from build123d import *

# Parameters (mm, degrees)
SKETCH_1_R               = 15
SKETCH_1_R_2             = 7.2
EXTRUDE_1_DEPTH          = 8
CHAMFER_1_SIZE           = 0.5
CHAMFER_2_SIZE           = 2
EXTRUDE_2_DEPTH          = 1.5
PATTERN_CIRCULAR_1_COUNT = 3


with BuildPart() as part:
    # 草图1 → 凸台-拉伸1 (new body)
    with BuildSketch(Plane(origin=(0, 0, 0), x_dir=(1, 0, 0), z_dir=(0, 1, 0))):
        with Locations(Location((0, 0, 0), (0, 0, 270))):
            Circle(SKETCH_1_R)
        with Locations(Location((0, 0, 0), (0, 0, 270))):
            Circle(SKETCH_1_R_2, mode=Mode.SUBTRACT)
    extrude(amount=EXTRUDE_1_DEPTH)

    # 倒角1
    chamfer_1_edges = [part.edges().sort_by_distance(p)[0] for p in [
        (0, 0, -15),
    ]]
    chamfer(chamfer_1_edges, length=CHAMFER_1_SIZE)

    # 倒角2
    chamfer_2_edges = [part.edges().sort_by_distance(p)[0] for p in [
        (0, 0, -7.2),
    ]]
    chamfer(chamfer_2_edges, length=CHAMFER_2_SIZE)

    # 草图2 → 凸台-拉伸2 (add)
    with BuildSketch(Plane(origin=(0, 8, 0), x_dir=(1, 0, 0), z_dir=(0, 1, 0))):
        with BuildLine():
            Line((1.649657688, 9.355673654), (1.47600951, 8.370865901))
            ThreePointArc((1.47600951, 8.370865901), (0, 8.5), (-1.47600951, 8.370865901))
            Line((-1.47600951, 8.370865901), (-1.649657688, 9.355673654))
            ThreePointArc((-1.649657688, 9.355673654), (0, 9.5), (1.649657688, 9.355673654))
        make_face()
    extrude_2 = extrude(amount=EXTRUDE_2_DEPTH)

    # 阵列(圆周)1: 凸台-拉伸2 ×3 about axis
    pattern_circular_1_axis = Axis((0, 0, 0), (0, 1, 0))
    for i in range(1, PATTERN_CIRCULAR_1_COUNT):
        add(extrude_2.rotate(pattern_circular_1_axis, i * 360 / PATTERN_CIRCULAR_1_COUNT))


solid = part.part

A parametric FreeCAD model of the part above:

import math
import FreeCAD as App
import Part
import Sketcher
from FreeCAD import Vector
Q = App.Units.Quantity


def edges_at(feature, points):
    """Names of the edges that pass closest to the given points."""
    edges = feature.Shape.Edges
    near = lambda p: min(range(len(edges)), key=lambda i: edges[i].distToShape(Part.Vertex(*p))[0])
    return sorted({f"Edge{near(p) + 1}" for p in points})

doc = App.newDocument("Part")
body = doc.addObject("PartDesign::Body", "Body")

# Sketch on XZ plane
sketch1 = doc.addObject("Sketcher::SketchObject", "Sketch")
body.addObject(sketch1)
sketch1.AttachmentSupport = (doc.XZ_Plane, [""])
sketch1.MapMode = "FlatFace"
sketch1.addGeometry(Part.Circle(Vector(0, 0, 0), Vector(0, 0, 1), 15), False)
sketch1.addGeometry(Part.Circle(Vector(0, 0, 0), Vector(0, 0, 1), 7), False)
sketch1.addConstraint(Sketcher.Constraint("Coincident", 0, 3, -1, 1))
sketch1.addConstraint(Sketcher.Constraint("Coincident", 1, 3, -1, 1))
sketch1.addConstraint(Sketcher.Constraint("Diameter", 0, 30.0))
sketch1.addConstraint(Sketcher.Constraint("Diameter", 1, 14.4))
pad1 = doc.addObject("PartDesign::Pad", "Pad")
body.addObject(pad1)
pad1.Profile = sketch1
pad1.Length = 8
pad1.Reversed = True
doc.recompute()

chamfer = doc.addObject("PartDesign::Chamfer", "Chamfer")
body.addObject(chamfer)
chamfer.Base = (pad1, edges_at(pad1, [(0, 0, -15)]))
chamfer.Size = 0.5
doc.recompute()

chamfer2 = doc.addObject("PartDesign::Chamfer", "Chamfer001")
body.addObject(chamfer2)
chamfer2.Base = (chamfer, edges_at(chamfer, [(0, 0, -7.2)]))
chamfer2.Size = 2

# Sketch on XZ plane
sketch2 = doc.addObject("Sketcher::SketchObject", "Sketch001")
body.addObject(sketch2)
sketch2.AttachmentSupport = (doc.XZ_Plane, [""])
sketch2.MapMode = "FlatFace"
sketch2.AttachmentOffset = App.Placement(Vector(0, 0, -8), App.Rotation())
sketch2.addGeometry(Part.LineSegment(Vector(1.5, -8.4, 0), Vector(1.6, -9.4, 0)), False)
sketch2.addGeometry(Part.ArcOfCircle(Part.Circle(Vector(0, 0, 0), Vector(0, 0, 1), 9.5), math.radians(-100), math.radians(-80)), False)
sketch2.addGeometry(Part.LineSegment(Vector(-1.6, -9.4, 0), Vector(-1.5, -8.4, 0)), False)
sketch2.addGeometry(Part.ArcOfCircle(Part.Circle(Vector(0, 0, 0), Vector(0, 0, 1), 8.5), math.radians(-100), math.radians(-80)), False)
sketch2.addConstraint(Sketcher.Constraint("Coincident", 0, 2, 1, 2))
sketch2.addConstraint(Sketcher.Constraint("Coincident", 1, 1, 2, 1))
sketch2.addConstraint(Sketcher.Constraint("Coincident", 2, 2, 3, 1))
sketch2.addConstraint(Sketcher.Constraint("Coincident", 3, 2, 0, 1))
sketch2.addConstraint(Sketcher.Constraint("Coincident", 1, 3, -1, 1))
sketch2.addConstraint(Sketcher.Constraint("Coincident", 3, 3, -1, 1))
sketch2.addConstraint(Sketcher.Constraint("Horizontal", 0, 2, 1, 1))
sketch2.addConstraint(Sketcher.Constraint("Horizontal", 2, 2, 3, 2))
sketch2.addConstraint(Sketcher.Constraint("Radius", 1, 9.5))
sketch2.addConstraint(Sketcher.Constraint("Radius", 3, 8.5))
sketch2.addConstraint(Sketcher.Constraint("Angle", 0, Q("-80 deg")))
sketch2.addConstraint(Sketcher.Constraint("DistanceX", 2, 2, -1, 1, 1.47601))
pad2 = doc.addObject("PartDesign::Pad", "Pad001")
body.addObject(pad2)
pad2.Profile = sketch2
pad2.Length = 1.5
pad2.Reversed = True
doc.recompute()

polarpattern = doc.addObject("PartDesign::PolarPattern", "PolarPattern")
body.addObject(polarpattern)
polarpattern.Originals = [pad2]
polarpattern.Axis = (doc.Y_Axis, [""])
polarpattern.Angle = 360
polarpattern.Occurrences = 3
body.Tip = polarpattern

doc.recompute()
